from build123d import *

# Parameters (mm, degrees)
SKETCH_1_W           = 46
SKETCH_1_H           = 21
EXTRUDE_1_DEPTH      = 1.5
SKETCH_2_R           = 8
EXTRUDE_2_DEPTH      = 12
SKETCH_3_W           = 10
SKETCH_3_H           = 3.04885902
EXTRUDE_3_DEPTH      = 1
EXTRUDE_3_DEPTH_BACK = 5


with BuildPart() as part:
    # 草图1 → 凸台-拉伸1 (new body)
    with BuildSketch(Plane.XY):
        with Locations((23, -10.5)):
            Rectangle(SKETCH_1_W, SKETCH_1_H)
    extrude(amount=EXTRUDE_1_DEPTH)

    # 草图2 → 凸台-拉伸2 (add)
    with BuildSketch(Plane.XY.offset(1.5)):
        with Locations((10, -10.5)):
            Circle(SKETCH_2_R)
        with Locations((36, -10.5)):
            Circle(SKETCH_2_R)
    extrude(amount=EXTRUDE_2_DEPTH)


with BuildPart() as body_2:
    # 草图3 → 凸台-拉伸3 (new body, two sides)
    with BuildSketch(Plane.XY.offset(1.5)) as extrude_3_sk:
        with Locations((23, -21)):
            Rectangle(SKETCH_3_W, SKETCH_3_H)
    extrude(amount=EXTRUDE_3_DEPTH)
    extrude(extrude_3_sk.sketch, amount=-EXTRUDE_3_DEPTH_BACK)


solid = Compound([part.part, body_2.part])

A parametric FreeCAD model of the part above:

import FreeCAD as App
import Part
import Sketcher

V = App.Vector


def add_polygon(sketch, points):
    """Adds a closed chain of lines whose ends are joined by coincident constraints."""
    first, n = sketch.GeometryCount, len(points)
    for a, b in zip(points, points[1:] + points[:1]):
        sketch.addGeometry(Part.LineSegment(App.Vector(*a, 0), App.Vector(*b, 0)), False)
    for i in range(n):
        sketch.addConstraint(Sketcher.Constraint("Coincident", first + i, 2, first + (i + 1) % n, 1))

doc = App.newDocument("Part")
params = doc.addObject("Spreadsheet::Sheet", "Params")
for row, (alias, value) in enumerate([
    ("sketch1_width", "46 mm"),
    ("sketch1_height", "21 mm"),
    ("pad1_length", "1.5 mm"),
    ("sketch2_diameter", "16 mm"),
    ("pad2_length", "12 mm"),
    ("sketch3_width", "10 mm"),
    ("pad3_length", "1 mm"),
    ("pad3_length2", "5 mm"),
], start=1):
    params.set(f"A{row}", alias)
    params.set(f"B{row}", "=" + value)
    params.setAlias(f"B{row}", alias)

body = doc.addObject("PartDesign::Body", "Body")

sketch1 = doc.addObject("Sketcher::SketchObject", "Sketch")
body.addObject(sketch1)
sketch1.AttachmentSupport = (doc.XY_Plane, [""])
sketch1.MapMode = "FlatFace"
add_polygon(sketch1, [(0, 0), (0, -21), (46, -21), (46, 0)])
sketch1.addConstraint(Sketcher.Constraint("Vertical", 0))
sketch1.addConstraint(Sketcher.Constraint("Horizontal", 1))
sketch1.addConstraint(Sketcher.Constraint("Vertical", 2))
sketch1.addConstraint(Sketcher.Constraint("Horizontal", 3))
sketch1.addConstraint(Sketcher.Constraint("Coincident", 3, 2, -1, 1))
sketch1.addConstraint(Sketcher.Constraint("DistanceX", 1, 1, 1, 2, 46.0))
sketch1.addConstraint(Sketcher.Constraint("DistanceY", 0, 2, 0, 1, 21.0))
sketch1.setExpression("Constraints[9]", "Params.sketch1_width")
sketch1.setExpression("Constraints[10]", "Params.sketch1_height")
pad1 = doc.addObject("PartDesign::Pad", "Pad")
body.addObject(pad1)
pad1.Profile = sketch1
pad1.setExpression("Length", "Params.pad1_length")

sketch2 = doc.addObject("Sketcher::SketchObject", "Sketch001")
body.addObject(sketch2)
sketch2.AttachmentSupport = (doc.XY_Plane, [""])
sketch2.MapMode = "FlatFace"
sketch2.AttachmentOffset = App.Placement(V(0, 0, 1.5), App.Rotation())
sketch2.addGeometry(Part.Circle(V(10, -10, 0), V(0, 0, 1), 8), False)
sketch2.addGeometry(Part.Circle(V(36, -10, 0), V(0, 0, 1), 8), False)
sketch2.addConstraint(Sketcher.Constraint("Equal", 0, 1))
sketch2.addConstraint(Sketcher.Constraint("Horizontal", 0, 3, 1, 3))
sketch2.addConstraint(Sketcher.Constraint("Diameter", 0, 16.0))
sketch2.addConstraint(Sketcher.Constraint("DistanceX", -1, 1, 0, 3, 10.0))
sketch2.addConstraint(Sketcher.Constraint("DistanceX", -1, 1, 1, 3, 36.0))
sketch2.addConstraint(Sketcher.Constraint("DistanceY", 0, 3, -1, 1, 10.5))
sketch2.setExpression("Constraints[2]", "Params.sketch2_diameter")
pad2 = doc.addObject("PartDesign::Pad", "Pad001")
body.addObject(pad2)
pad2.Profile = sketch2
pad2.setExpression("Length", "Params.pad2_length")
body2 = doc.addObject("PartDesign::Body", "Body001")

sketch3 = doc.addObject("Sketcher::SketchObject", "Sketch002")
body2.addObject(sketch3)
sketch3.AttachmentSupport = (doc.getObject("XY_Plane001"), [""])
sketch3.MapMode = "FlatFace"
sketch3.AttachmentOffset = App.Placement(V(0, 0, 1.5), App.Rotation())
add_polygon(sketch3, [(18, -19.5), (18, -22.5), (28, -22.5), (28, -19.5)])
sketch3.addConstraint(Sketcher.Constraint("Vertical", 0))
sketch3.addConstraint(Sketcher.Constraint("Horizontal", 1))
sketch3.addConstraint(Sketcher.Constraint("Vertical", 2))
sketch3.addConstraint(Sketcher.Constraint("Horizontal", 3))
sketch3.addConstraint(Sketcher.Constraint("DistanceX", 1, 1, 1, 2, 10.0))
sketch3.addConstraint(Sketcher.Constraint("DistanceX", -1, 1, 0, 2, 18.0))
sketch3.addConstraint(Sketcher.Constraint("DistanceY", 0, 2, 0, 1, 3.048859))
sketch3.addConstraint(Sketcher.Constraint("DistanceY", 0, 2, -1, 1, 22.52443))
sketch3.setExpression("Constraints[8]", "Params.sketch3_width")
pad3 = doc.addObject("PartDesign::Pad", "Pad002")
body2.addObject(pad3)
pad3.Profile = sketch3
pad3.Type = "TwoLengths"
pad3.setExpression("Length", "Params.pad3_length")
pad3.setExpression("Length2", "Params.pad3_length2")

doc.recompute()
